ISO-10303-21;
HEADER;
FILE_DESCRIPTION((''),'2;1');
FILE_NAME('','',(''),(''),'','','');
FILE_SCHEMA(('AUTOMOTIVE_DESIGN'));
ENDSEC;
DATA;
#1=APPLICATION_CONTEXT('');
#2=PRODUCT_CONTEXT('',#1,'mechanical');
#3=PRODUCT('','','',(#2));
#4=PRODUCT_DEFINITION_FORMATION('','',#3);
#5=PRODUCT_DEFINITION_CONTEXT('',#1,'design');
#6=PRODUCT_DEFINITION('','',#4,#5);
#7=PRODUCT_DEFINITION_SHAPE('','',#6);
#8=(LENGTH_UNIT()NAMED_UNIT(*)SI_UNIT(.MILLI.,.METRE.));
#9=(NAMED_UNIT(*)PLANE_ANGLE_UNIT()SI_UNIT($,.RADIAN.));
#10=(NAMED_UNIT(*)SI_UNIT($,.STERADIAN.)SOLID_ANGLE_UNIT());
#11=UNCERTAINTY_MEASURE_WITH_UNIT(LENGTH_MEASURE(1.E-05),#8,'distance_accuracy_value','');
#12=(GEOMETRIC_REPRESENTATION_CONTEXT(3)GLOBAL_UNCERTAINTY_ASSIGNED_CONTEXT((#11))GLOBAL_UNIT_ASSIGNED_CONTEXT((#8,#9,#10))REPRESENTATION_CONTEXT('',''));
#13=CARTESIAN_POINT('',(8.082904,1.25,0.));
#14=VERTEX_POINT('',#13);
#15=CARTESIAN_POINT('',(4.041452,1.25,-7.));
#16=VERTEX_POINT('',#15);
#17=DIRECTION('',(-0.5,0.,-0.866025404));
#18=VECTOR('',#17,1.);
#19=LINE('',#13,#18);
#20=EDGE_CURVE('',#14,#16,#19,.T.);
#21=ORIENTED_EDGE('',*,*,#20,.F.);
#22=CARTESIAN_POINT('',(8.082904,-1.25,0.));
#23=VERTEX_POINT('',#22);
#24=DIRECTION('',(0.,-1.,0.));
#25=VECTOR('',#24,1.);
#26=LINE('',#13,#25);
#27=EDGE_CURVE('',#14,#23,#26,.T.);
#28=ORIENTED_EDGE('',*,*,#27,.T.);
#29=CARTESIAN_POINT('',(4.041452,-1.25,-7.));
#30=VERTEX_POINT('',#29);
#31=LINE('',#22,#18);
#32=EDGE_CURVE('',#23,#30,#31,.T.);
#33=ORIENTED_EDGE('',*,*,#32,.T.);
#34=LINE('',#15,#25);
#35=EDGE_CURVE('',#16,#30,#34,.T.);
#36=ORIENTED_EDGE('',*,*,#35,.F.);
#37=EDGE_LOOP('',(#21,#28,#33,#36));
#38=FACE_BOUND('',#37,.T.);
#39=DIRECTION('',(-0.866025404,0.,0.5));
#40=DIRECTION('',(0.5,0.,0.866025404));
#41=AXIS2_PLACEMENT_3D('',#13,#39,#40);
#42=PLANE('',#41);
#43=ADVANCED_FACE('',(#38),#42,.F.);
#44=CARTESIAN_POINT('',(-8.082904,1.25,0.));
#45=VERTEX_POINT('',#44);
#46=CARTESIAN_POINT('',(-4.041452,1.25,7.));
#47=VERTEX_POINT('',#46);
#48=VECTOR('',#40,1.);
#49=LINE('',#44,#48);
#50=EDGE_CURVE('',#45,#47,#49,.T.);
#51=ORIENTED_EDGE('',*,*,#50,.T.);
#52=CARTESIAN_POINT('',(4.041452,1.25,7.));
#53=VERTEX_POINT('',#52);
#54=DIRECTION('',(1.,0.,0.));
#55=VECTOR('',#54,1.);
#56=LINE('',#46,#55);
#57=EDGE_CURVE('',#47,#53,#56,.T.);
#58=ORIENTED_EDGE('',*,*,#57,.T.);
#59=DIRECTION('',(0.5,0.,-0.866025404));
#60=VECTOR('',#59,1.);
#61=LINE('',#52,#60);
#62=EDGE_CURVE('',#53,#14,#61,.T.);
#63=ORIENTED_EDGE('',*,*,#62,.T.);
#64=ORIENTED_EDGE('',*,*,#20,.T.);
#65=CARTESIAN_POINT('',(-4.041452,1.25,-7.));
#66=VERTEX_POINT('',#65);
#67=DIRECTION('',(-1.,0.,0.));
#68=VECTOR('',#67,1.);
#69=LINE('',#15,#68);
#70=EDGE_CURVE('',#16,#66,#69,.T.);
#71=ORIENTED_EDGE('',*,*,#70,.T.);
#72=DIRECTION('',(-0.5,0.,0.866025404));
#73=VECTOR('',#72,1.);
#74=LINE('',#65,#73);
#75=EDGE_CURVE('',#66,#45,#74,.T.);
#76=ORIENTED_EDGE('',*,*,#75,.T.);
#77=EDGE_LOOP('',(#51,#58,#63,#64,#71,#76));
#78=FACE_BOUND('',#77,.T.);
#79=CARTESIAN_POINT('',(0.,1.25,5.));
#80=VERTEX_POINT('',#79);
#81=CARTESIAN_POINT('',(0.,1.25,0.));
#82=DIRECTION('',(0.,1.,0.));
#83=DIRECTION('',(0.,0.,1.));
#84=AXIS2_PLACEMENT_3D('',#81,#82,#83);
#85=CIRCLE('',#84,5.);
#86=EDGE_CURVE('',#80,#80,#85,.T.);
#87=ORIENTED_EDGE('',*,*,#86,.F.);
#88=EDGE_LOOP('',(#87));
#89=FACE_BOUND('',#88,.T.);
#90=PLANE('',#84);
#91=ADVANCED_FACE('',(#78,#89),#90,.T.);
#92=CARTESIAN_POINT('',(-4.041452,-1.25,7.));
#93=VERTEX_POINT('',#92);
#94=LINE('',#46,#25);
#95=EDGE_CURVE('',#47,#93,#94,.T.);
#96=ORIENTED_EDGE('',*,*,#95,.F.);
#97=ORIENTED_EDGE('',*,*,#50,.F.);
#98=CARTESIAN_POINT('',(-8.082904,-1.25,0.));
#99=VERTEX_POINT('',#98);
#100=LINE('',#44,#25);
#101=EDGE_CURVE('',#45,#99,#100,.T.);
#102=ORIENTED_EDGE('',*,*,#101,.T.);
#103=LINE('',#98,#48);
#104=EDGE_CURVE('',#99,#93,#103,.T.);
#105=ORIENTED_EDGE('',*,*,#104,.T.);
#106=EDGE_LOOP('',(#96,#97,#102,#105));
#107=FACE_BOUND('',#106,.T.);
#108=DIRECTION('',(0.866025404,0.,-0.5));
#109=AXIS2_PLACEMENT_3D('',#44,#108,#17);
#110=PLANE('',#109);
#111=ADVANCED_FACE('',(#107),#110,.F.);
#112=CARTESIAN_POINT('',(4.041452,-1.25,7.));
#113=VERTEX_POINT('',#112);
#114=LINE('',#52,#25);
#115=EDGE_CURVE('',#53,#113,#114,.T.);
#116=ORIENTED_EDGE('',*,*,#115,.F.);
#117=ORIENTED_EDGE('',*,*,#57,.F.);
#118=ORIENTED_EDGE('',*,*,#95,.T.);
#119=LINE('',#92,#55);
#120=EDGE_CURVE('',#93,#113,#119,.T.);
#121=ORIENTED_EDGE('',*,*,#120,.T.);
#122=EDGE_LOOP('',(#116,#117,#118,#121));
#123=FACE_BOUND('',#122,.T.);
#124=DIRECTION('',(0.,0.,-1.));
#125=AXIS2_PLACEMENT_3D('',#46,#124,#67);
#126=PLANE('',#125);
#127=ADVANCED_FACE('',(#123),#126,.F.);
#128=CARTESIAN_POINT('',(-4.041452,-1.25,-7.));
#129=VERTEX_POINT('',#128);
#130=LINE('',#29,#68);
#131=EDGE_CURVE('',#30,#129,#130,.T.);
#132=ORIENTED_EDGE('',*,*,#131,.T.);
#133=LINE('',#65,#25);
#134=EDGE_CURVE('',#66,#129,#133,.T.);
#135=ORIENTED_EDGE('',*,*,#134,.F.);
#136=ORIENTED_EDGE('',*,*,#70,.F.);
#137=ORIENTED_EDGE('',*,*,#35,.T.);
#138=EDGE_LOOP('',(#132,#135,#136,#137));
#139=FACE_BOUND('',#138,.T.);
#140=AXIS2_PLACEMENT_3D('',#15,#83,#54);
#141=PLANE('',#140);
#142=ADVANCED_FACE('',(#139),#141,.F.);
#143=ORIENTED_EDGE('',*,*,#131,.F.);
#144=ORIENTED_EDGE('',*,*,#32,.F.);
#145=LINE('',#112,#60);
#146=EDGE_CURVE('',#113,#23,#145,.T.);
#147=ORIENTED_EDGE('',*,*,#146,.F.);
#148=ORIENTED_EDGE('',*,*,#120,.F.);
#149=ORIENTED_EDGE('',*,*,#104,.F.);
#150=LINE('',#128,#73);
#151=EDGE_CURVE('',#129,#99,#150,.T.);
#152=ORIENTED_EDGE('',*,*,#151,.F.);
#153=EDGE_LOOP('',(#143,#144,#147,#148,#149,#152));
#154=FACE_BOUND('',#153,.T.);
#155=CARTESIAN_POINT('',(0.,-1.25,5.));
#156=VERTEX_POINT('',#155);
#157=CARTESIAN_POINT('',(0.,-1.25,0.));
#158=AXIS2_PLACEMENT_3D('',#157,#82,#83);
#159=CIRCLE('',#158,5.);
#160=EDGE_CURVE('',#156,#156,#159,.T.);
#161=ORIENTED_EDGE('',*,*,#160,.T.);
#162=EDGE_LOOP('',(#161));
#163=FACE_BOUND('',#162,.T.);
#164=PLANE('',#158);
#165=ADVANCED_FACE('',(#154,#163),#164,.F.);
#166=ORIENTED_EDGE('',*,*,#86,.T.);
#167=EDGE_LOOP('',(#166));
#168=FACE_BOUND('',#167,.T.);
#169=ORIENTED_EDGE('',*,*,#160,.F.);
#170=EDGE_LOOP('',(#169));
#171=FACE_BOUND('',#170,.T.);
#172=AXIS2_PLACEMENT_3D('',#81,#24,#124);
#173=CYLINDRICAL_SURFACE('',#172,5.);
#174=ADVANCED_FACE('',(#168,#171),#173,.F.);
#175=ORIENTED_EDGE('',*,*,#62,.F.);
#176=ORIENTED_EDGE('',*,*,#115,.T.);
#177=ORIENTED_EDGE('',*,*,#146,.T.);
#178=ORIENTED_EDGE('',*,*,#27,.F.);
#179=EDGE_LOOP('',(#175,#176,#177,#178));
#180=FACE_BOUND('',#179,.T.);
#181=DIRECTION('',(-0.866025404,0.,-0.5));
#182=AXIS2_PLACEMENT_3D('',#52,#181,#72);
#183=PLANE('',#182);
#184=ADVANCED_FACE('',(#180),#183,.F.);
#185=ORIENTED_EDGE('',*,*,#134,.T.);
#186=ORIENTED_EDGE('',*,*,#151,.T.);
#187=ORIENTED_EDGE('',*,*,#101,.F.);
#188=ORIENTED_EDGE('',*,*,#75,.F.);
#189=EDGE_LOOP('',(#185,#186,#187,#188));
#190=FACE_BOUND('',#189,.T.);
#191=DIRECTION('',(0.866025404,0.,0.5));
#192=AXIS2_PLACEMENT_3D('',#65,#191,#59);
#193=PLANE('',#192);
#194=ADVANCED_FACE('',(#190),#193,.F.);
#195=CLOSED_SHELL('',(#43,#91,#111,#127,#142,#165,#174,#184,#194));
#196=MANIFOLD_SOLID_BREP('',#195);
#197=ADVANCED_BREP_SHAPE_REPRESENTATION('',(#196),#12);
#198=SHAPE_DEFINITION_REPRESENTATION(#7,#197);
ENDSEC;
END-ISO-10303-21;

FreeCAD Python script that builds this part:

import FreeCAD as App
import Part
import Sketcher

V = App.Vector
Q = App.Units.Quantity

doc = App.newDocument("Part")
body = doc.addObject("PartDesign::Body", "Body")

sketch1 = body.newObject("Sketcher::SketchObject", "Sketch")
sketch1.AttachmentSupport = (doc.getObject("XZ_Plane"), [""])
sketch1.MapMode = "FlatFace"
sketch1.addGeometry([
    Part.LineSegment(V(8, 0, 0), V(4, -7, 0)),
    Part.LineSegment(V(4, -7, 0), V(-4, -7, 0)),
    Part.LineSegment(V(-4, -7, 0), V(-8, 0, 0)),
    Part.LineSegment(V(-8, 0, 0), V(-4, 7, 0)),
    Part.LineSegment(V(-4, 7, 0), V(4, 7, 0)),
    Part.LineSegment(V(4, 7, 0), V(8, 0, 0)),
    Part.Circle(V(0, 0, 0), V(0, 0, 1), 5),
], False)
sketch1.addConstraint([
    Sketcher.Constraint("Coincident", 0, 2, 1, 1),
    Sketcher.Constraint("Coincident", 1, 2, 2, 1),
    Sketcher.Constraint("Coincident", 2, 2, 3, 1),
    Sketcher.Constraint("Coincident", 3, 2, 4, 1),
    Sketcher.Constraint("Coincident", 4, 2, 5, 1),
    Sketcher.Constraint("Coincident", 5, 2, 0, 1),
    Sketcher.Constraint("Horizontal", 1),
    Sketcher.Constraint("Horizontal", 4),
    Sketcher.Constraint("Coincident", 6, 3, -1, 1),
    Sketcher.Constraint("Symmetric", 0, 2, 3, 2, -1, 1),
    Sketcher.Constraint("Symmetric", 2, 2, 5, 2, -1, 1),
    Sketcher.Constraint("PointOnObject", 2, 2, -1),
    Sketcher.Constraint("Parallel", 2, 5),
    Sketcher.Constraint("Vertical", 1, 2, 3, 2),
    Sketcher.Constraint("Diameter", 6, Q("10 mm")),
    Sketcher.Constraint("Angle", 0, Q("-120 deg")),
    Sketcher.Constraint("DistanceY", 0, 2, -1, 1, Q("7 mm")),
    Sketcher.Constraint("DistanceX", 1, 2, 1, 1, Q("8.082904 mm")),
])
pad1 = body.newObject("PartDesign::Pad", "Pad")
pad1.Profile = sketch1
pad1.Length = 2.5
pad1.Midplane = True

doc.recompute()
